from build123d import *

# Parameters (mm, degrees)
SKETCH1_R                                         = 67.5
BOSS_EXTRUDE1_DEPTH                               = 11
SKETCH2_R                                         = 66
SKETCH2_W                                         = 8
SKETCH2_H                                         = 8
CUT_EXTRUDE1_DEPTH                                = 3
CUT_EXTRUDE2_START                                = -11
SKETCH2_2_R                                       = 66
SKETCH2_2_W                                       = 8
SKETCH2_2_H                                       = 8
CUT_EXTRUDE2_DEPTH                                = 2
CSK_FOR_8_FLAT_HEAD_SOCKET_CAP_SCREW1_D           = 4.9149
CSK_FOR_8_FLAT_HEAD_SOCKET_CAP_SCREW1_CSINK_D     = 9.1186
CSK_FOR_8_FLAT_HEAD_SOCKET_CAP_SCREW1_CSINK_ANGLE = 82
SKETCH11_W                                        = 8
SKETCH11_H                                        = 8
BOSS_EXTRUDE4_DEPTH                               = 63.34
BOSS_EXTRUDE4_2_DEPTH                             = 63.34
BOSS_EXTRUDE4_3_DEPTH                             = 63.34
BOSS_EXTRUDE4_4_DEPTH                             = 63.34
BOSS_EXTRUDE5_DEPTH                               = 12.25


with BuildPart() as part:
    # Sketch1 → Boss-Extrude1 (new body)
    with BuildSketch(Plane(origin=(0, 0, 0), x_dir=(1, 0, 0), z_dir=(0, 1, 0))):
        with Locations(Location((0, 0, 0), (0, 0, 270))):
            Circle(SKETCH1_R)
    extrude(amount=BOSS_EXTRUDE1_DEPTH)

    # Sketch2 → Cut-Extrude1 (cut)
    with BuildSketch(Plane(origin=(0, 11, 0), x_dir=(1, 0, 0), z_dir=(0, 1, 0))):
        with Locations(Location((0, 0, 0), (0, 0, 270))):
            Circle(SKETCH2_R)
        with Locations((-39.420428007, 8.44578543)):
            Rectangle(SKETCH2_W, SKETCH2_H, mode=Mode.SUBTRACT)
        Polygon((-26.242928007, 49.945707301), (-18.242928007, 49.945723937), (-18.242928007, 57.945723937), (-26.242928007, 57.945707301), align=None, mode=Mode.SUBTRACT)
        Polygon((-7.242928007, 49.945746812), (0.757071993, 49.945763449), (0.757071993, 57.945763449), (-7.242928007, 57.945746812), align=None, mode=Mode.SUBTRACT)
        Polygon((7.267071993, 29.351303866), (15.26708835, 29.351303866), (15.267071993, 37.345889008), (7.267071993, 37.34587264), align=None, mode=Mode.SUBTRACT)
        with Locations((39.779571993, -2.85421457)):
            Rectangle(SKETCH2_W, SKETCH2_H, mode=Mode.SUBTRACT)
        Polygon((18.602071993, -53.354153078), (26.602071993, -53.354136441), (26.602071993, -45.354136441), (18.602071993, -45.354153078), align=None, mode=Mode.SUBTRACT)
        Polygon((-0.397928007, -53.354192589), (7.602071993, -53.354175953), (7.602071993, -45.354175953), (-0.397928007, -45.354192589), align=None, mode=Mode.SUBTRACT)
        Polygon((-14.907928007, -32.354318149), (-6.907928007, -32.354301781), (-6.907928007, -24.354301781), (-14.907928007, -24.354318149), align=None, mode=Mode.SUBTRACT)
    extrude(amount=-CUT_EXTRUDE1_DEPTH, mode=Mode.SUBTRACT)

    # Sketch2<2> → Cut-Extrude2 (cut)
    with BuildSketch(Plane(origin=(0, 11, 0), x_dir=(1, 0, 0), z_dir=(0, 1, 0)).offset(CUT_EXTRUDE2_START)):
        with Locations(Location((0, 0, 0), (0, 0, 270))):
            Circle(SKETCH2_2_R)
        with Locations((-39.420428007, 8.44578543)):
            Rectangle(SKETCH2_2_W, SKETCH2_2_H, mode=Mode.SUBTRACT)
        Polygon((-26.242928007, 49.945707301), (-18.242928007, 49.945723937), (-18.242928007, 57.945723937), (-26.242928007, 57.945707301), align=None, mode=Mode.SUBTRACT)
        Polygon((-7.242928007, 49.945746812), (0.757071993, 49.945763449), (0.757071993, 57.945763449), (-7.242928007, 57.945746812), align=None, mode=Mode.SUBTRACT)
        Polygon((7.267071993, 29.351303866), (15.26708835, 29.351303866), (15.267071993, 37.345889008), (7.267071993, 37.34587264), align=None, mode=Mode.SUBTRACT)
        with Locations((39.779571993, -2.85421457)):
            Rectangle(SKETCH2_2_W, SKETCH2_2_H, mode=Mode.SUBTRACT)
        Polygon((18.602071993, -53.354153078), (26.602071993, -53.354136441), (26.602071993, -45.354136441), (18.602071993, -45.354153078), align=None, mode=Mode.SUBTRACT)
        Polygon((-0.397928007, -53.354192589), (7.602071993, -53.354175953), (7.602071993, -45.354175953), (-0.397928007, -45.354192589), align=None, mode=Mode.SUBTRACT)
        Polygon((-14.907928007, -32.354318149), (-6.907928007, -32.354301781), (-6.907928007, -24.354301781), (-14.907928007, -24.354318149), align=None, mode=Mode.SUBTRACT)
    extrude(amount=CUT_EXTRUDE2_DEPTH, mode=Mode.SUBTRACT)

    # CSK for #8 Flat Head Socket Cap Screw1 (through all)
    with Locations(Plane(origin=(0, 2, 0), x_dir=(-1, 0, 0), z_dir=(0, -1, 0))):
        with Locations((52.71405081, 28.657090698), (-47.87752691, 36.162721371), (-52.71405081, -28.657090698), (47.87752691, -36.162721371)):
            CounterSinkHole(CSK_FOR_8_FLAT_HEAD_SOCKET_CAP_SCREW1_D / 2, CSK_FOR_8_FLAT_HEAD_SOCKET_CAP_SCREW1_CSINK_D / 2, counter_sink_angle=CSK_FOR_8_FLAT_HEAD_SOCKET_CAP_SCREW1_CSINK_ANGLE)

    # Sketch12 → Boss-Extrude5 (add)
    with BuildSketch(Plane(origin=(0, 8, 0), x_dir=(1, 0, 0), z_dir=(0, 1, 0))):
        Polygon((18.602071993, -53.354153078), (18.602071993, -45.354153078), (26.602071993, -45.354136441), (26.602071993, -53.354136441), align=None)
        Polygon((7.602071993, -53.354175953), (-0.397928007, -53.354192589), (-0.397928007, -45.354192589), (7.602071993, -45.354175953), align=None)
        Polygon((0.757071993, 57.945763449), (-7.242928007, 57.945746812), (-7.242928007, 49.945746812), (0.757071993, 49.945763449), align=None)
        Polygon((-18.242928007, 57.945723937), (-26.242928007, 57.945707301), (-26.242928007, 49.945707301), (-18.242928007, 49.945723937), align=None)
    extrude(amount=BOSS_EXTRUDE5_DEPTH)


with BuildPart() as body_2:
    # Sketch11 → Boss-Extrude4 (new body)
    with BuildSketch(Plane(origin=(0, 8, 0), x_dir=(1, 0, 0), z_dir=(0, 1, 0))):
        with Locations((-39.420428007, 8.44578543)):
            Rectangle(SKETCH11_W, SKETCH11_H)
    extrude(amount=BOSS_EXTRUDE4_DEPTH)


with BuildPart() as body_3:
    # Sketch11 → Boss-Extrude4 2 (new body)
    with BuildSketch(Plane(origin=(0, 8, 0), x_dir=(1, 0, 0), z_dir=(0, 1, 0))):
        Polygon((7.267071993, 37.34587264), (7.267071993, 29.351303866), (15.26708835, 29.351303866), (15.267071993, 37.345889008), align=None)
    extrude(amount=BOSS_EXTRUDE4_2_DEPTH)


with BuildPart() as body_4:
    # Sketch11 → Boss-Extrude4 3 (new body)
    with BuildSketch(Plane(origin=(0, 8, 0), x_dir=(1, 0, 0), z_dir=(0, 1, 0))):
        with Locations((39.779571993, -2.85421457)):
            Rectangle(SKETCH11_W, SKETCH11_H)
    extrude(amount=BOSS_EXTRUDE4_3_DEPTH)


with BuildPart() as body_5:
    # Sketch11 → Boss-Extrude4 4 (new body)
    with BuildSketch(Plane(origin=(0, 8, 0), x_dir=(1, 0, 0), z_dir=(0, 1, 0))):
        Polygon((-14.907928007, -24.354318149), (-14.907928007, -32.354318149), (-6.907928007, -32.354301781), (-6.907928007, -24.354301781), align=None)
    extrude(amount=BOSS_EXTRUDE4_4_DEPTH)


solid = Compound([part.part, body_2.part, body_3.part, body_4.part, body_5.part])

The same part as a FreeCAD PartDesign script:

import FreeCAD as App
import Part
import Sketcher
from FreeCAD import Vector

doc = App.newDocument("Part")
body = doc.addObject("PartDesign::Body", "Body")

sketch1 = doc.addObject("Sketcher::SketchObject", "Sketch")
body.addObject(sketch1)
sketch1.AttachmentSupport = (doc.XZ_Plane, [""])
sketch1.MapMode = "FlatFace"
sketch1.addGeometry(Part.Circle(Vector(0, 0, 0), Vector(0, 0, 1), 68), False)
sketch1.addConstraint([
    Sketcher.Constraint("Coincident", 0, 3, -1, 1),
    Sketcher.Constraint("Diameter", 0, 135.0),
])
pad1 = doc.addObject("PartDesign::Pad", "Pad")
body.addObject(pad1)
pad1.Profile = sketch1
pad1.Length = 11
pad1.Reversed = True

sketch2 = doc.addObject("Sketcher::SketchObject", "Sketch001")
body.addObject(sketch2)
sketch2.AttachmentSupport = (doc.XZ_Plane, [""])
sketch2.MapMode = "FlatFace"
sketch2.AttachmentOffset = App.Placement(Vector(0, 0, -11), App.Rotation())
sketch2.addGeometry([
    Part.Circle(Vector(0, 0, 0), Vector(0, 0, 1), 66),
    Part.LineSegment(Vector(-18, -50, 0), Vector(-26, -50, 0)),
    Part.LineSegment(Vector(-26, -50, 0), Vector(-26, -58, 0)),
    Part.LineSegment(Vector(-26, -58, 0), Vector(-18, -58, 0)),
    Part.LineSegment(Vector(-18, -58, 0), Vector(-18, -50, 0)),
    Part.LineSegment(Vector(-35, -4, 0), Vector(-43, -4, 0)),
    Part.LineSegment(Vector(-43, -4, 0), Vector(-43, -12, 0)),
    Part.LineSegment(Vector(-43, -12, 0), Vector(-35, -12, 0)),
    Part.LineSegment(Vector(-35, -12, 0), Vector(-35, -4, 0)),
    Part.LineSegment(Vector(1, -50, 0), Vector(-7, -50, 0)),
    Part.LineSegment(Vector(-7, -50, 0), Vector(-7, -58, 0)),
    Part.LineSegment(Vector(-7, -58, 0), Vector(1, -58, 0)),
    Part.LineSegment(Vector(1, -58, 0), Vector(1, -50, 0)),
    Part.LineSegment(Vector(-7, 32, 0), Vector(-15, 32, 0)),
    Part.LineSegment(Vector(-15, 32, 0), Vector(-15, 24, 0)),
    Part.LineSegment(Vector(-15, 24, 0), Vector(-7, 24, 0)),
    Part.LineSegment(Vector(-7, 24, 0), Vector(-7, 32, 0)),
    Part.LineSegment(Vector(15, -29, 0), Vector(7, -29, 0)),
    Part.LineSegment(Vector(7, -29, 0), Vector(7, -37, 0)),
    Part.LineSegment(Vector(7, -37, 0), Vector(15, -37, 0)),
    Part.LineSegment(Vector(15, -37, 0), Vector(15, -29, 0)),
    Part.LineSegment(Vector(8, 53, 0), Vector(0, 53, 0)),
    Part.LineSegment(Vector(0, 53, 0), Vector(0, 45, 0)),
    Part.LineSegment(Vector(0, 45, 0), Vector(8, 45, 0)),
    Part.LineSegment(Vector(8, 45, 0), Vector(8, 53, 0)),
    Part.LineSegment(Vector(44, 7, 0), Vector(36, 7, 0)),
    Part.LineSegment(Vector(36, 7, 0), Vector(36, -1, 0)),
    Part.LineSegment(Vector(36, -1, 0), Vector(44, -1, 0)),
    Part.LineSegment(Vector(44, -1, 0), Vector(44, 7, 0)),
    Part.LineSegment(Vector(27, 53, 0), Vector(19, 53, 0)),
    Part.LineSegment(Vector(19, 53, 0), Vector(19, 45, 0)),
    Part.LineSegment(Vector(19, 45, 0), Vector(27, 45, 0)),
    Part.LineSegment(Vector(27, 45, 0), Vector(27, 53, 0)),
], False)
sketch2.addConstraint([
    Sketcher.Constraint("Coincident", 1, 2, 2, 1),
    Sketcher.Constraint("Coincident", 2, 2, 3, 1),
    Sketcher.Constraint("Coincident", 3, 2, 4, 1),
    Sketcher.Constraint("Coincident", 4, 2, 1, 1),
    Sketcher.Constraint("Coincident", 5, 2, 6, 1),
    Sketcher.Constraint("Coincident", 6, 2, 7, 1),
    Sketcher.Constraint("Coincident", 7, 2, 8, 1),
    Sketcher.Constraint("Coincident", 8, 2, 5, 1),
    Sketcher.Constraint("Coincident", 9, 2, 10, 1),
    Sketcher.Constraint("Coincident", 10, 2, 11, 1),
    Sketcher.Constraint("Coincident", 11, 2, 12, 1),
    Sketcher.Constraint("Coincident", 12, 2, 9, 1),
    Sketcher.Constraint("Coincident", 13, 2, 14, 1),
    Sketcher.Constraint("Coincident", 14, 2, 15, 1),
    Sketcher.Constraint("Coincident", 15, 2, 16, 1),
    Sketcher.Constraint("Coincident", 16, 2, 13, 1),
    Sketcher.Constraint("Coincident", 17, 2, 18, 1),
    Sketcher.Constraint("Coincident", 18, 2, 19, 1),
    Sketcher.Constraint("Coincident", 19, 2, 20, 1),
    Sketcher.Constraint("Coincident", 20, 2, 17, 1),
    Sketcher.Constraint("Coincident", 21, 2, 22, 1),
    Sketcher.Constraint("Coincident", 22, 2, 23, 1),
    Sketcher.Constraint("Coincident", 23, 2, 24, 1),
    Sketcher.Constraint("Coincident", 24, 2, 21, 1),
    Sketcher.Constraint("Coincident", 25, 2, 26, 1),
    Sketcher.Constraint("Coincident", 26, 2, 27, 1),
    Sketcher.Constraint("Coincident", 27, 2, 28, 1),
    Sketcher.Constraint("Coincident", 28, 2, 25, 1),
    Sketcher.Constraint("Coincident", 29, 2, 30, 1),
    Sketcher.Constraint("Coincident", 30, 2, 31, 1),
    Sketcher.Constraint("Coincident", 31, 2, 32, 1),
    Sketcher.Constraint("Coincident", 32, 2, 29, 1),
    Sketcher.Constraint("Vertical", 2),
    Sketcher.Constraint("Vertical", 4),
    Sketcher.Constraint("Horizontal", 5),
    Sketcher.Constraint("Vertical", 6),
    Sketcher.Constraint("Horizontal", 7),
    Sketcher.Constraint("Vertical", 8),
    Sketcher.Constraint("Vertical", 10),
    Sketcher.Constraint("Vertical", 12),
    Sketcher.Constraint("Vertical", 14),
    Sketcher.Constraint("Vertical", 16),
    Sketcher.Constraint("Horizontal", 17),
    Sketcher.Constraint("Vertical", 18),
    Sketcher.Constraint("Vertical", 22),
    Sketcher.Constraint("Vertical", 24),
    Sketcher.Constraint("Horizontal", 25),
    Sketcher.Constraint("Vertical", 26),
    Sketcher.Constraint("Horizontal", 27),
    Sketcher.Constraint("Vertical", 28),
    Sketcher.Constraint("Vertical", 30),
    Sketcher.Constraint("Vertical", 32),
    Sketcher.Constraint("Coincident", 0, 3, -1, 1),
    Sketcher.Constraint("Parallel", 1, 3),
    Sketcher.Constraint("Parallel", 3, 9),
    Sketcher.Constraint("Parallel", 9, 11),
    Sketcher.Constraint("Parallel", 11, 13),
    Sketcher.Constraint("Parallel", 13, 15),
    Sketcher.Constraint("Parallel", 15, 19),
    Sketcher.Constraint("Perpendicular", 19, 20),
    Sketcher.Constraint("Perpendicular", 20, 21),
    Sketcher.Constraint("Parallel", 21, 23),
    Sketcher.Constraint("Parallel", 23, 29),
    Sketcher.Constraint("Parallel", 29, 31),
    Sketcher.Constraint("Equal", 7, 25),
    Sketcher.Constraint("Equal", 27, 2),
    Sketcher.Constraint("Equal", 4, 6),
    Sketcher.Constraint("Equal", 8, 10),
    Sketcher.Constraint("Equal", 12, 14),
    Sketcher.Constraint("Equal", 16, 22),
    Sketcher.Constraint("Equal", 24, 26),
    Sketcher.Constraint("Equal", 28, 30),
    Sketcher.Constraint("Equal", 3, 9),
    Sketcher.Constraint("Equal", 11, 13),
    Sketcher.Constraint("Equal", 15, 19),
    Sketcher.Constraint("Equal", 19, 21),
    Sketcher.Constraint("Equal", 23, 29),
    Sketcher.Constraint("Diameter", 0, 132.0),
    Sketcher.Constraint("DistanceX", 5, 2, 5, 1, 8.0),
    Sketcher.Constraint("Distance", 1, 8.0),
    Sketcher.Constraint("DistanceX", 4, 2, 9, 2, 11.0),
    Sketcher.Constraint("DistanceX", 24, 2, 29, 2, 11.0),
    Sketcher.Constraint("DistanceX", 12, 2, 17, 2, 6.51),
    Sketcher.Constraint("DistanceX", 16, 2, 21, 2, 6.51),
    Sketcher.Constraint("DistanceY", 18, 2, 18, 1, 7.994569),
    Sketcher.Constraint("DistanceY", -1, 1, 15, 2, 24.354302),
    Sketcher.Constraint("DistanceX", 5, 2, 1, 2, 17.1775),
    Sketcher.Constraint("DistanceX", 8, 2, 13, 2, 20.5125),
    Sketcher.Constraint("DistanceX", 17, 2, 25, 2, 28.5125),
    Sketcher.Constraint("DistanceX", 17, 2, 17, 1, 8.000016),
    Sketcher.Constraint("DistanceX", 1, 2, -1, 1, 26.242928),
    Sketcher.Constraint("DistanceY", 19, 2, -1, 1, 37.345889),
    Sketcher.Constraint("DistanceY", 1, 2, 5, 2, 45.499922),
    Sketcher.Constraint("DistanceY", 2, 2, 9, 2, 7.99996),
    Sketcher.Constraint("DistanceY", 12, 2, 17, 2, 20.59446),
    Sketcher.Constraint("DistanceY", 16, 2, 21, 2, 20.999891),
    Sketcher.Constraint("DistanceY", 20, 2, 25, 2, 36.205518),
    Sketcher.Constraint("DistanceY", 22, 2, 29, 2, 7.99996),
])
pocket1 = doc.addObject("PartDesign::Pocket", "Pocket")
body.addObject(pocket1)
pocket1.Profile = sketch2
pocket1.Length = 3
pocket1.Reversed = True

sketch3 = doc.addObject("Sketcher::SketchObject", "Sketch002")
body.addObject(sketch3)
sketch3.AttachmentSupport = (doc.XZ_Plane, [""])
sketch3.MapMode = "FlatFace"
sketch3.addGeometry([
    Part.Circle(Vector(0, 0, 0), Vector(0, 0, 1), 66),
    Part.LineSegment(Vector(-18, -50, 0), Vector(-26, -50, 0)),
    Part.LineSegment(Vector(-26, -50, 0), Vector(-26, -58, 0)),
    Part.LineSegment(Vector(-26, -58, 0), Vector(-18, -58, 0)),
    Part.LineSegment(Vector(-18, -58, 0), Vector(-18, -50, 0)),
    Part.LineSegment(Vector(-35, -4, 0), Vector(-43, -4, 0)),
    Part.LineSegment(Vector(-43, -4, 0), Vector(-43, -12, 0)),
    Part.LineSegment(Vector(-43, -12, 0), Vector(-35, -12, 0)),
    Part.LineSegment(Vector(-35, -12, 0), Vector(-35, -4, 0)),
    Part.LineSegment(Vector(1, -50, 0), Vector(-7, -50, 0)),
    Part.LineSegment(Vector(-7, -50, 0), Vector(-7, -58, 0)),
    Part.LineSegment(Vector(-7, -58, 0), Vector(1, -58, 0)),
    Part.LineSegment(Vector(1, -58, 0), Vector(1, -50, 0)),
    Part.LineSegment(Vector(-7, 32, 0), Vector(-15, 32, 0)),
    Part.LineSegment(Vector(-15, 32, 0), Vector(-15, 24, 0)),
    Part.LineSegment(Vector(-15, 24, 0), Vector(-7, 24, 0)),
    Part.LineSegment(Vector(-7, 24, 0), Vector(-7, 32, 0)),
    Part.LineSegment(Vector(15, -29, 0), Vector(7, -29, 0)),
    Part.LineSegment(Vector(7, -29, 0), Vector(7, -37, 0)),
    Part.LineSegment(Vector(7, -37, 0), Vector(15, -37, 0)),
    Part.LineSegment(Vector(15, -37, 0), Vector(15, -29, 0)),
    Part.LineSegment(Vector(8, 53, 0), Vector(0, 53, 0)),
    Part.LineSegment(Vector(0, 53, 0), Vector(0, 45, 0)),
    Part.LineSegment(Vector(0, 45, 0), Vector(8, 45, 0)),
    Part.LineSegment(Vector(8, 45, 0), Vector(8, 53, 0)),
    Part.LineSegment(Vector(44, 7, 0), Vector(36, 7, 0)),
    Part.LineSegment(Vector(36, 7, 0), Vector(36, -1, 0)),
    Part.LineSegment(Vector(36, -1, 0), Vector(44, -1, 0)),
    Part.LineSegment(Vector(44, -1, 0), Vector(44, 7, 0)),
    Part.LineSegment(Vector(27, 53, 0), Vector(19, 53, 0)),
    Part.LineSegment(Vector(19, 53, 0), Vector(19, 45, 0)),
    Part.LineSegment(Vector(19, 45, 0), Vector(27, 45, 0)),
    Part.LineSegment(Vector(27, 45, 0), Vector(27, 53, 0)),
], False)
sketch3.addConstraint([
    Sketcher.Constraint("Coincident", 1, 2, 2, 1),
    Sketcher.Constraint("Coincident", 2, 2, 3, 1),
    Sketcher.Constraint("Coincident", 3, 2, 4, 1),
    Sketcher.Constraint("Coincident", 4, 2, 1, 1),
    Sketcher.Constraint("Coincident", 5, 2, 6, 1),
    Sketcher.Constraint("Coincident", 6, 2, 7, 1),
    Sketcher.Constraint("Coincident", 7, 2, 8, 1),
    Sketcher.Constraint("Coincident", 8, 2, 5, 1),
    Sketcher.Constraint("Coincident", 9, 2, 10, 1),
    Sketcher.Constraint("Coincident", 10, 2, 11, 1),
    Sketcher.Constraint("Coincident", 11, 2, 12, 1),
    Sketcher.Constraint("Coincident", 12, 2, 9, 1),
    Sketcher.Constraint("Coincident", 13, 2, 14, 1),
    Sketcher.Constraint("Coincident", 14, 2, 15, 1),
    Sketcher.Constraint("Coincident", 15, 2, 16, 1),
    Sketcher.Constraint("Coincident", 16, 2, 13, 1),
    Sketcher.Constraint("Coincident", 17, 2, 18, 1),
    Sketcher.Constraint("Coincident", 18, 2, 19, 1),
    Sketcher.Constraint("Coincident", 19, 2, 20, 1),
    Sketcher.Constraint("Coincident", 20, 2, 17, 1),
    Sketcher.Constraint("Coincident", 21, 2, 22, 1),
    Sketcher.Constraint("Coincident", 22, 2, 23, 1),
    Sketcher.Constraint("Coincident", 23, 2, 24, 1),
    Sketcher.Constraint("Coincident", 24, 2, 21, 1),
    Sketcher.Constraint("Coincident", 25, 2, 26, 1),
    Sketcher.Constraint("Coincident", 26, 2, 27, 1),
    Sketcher.Constraint("Coincident", 27, 2, 28, 1),
    Sketcher.Constraint("Coincident", 28, 2, 25, 1),
    Sketcher.Constraint("Coincident", 29, 2, 30, 1),
    Sketcher.Constraint("Coincident", 30, 2, 31, 1),
    Sketcher.Constraint("Coincident", 31, 2, 32, 1),
    Sketcher.Constraint("Coincident", 32, 2, 29, 1),
    Sketcher.Constraint("Vertical", 2),
    Sketcher.Constraint("Vertical", 4),
    Sketcher.Constraint("Horizontal", 5),
    Sketcher.Constraint("Vertical", 6),
    Sketcher.Constraint("Horizontal", 7),
    Sketcher.Constraint("Vertical", 8),
    Sketcher.Constraint("Vertical", 10),
    Sketcher.Constraint("Vertical", 12),
    Sketcher.Constraint("Vertical", 14),
    Sketcher.Constraint("Vertical", 16),
    Sketcher.Constraint("Horizontal", 17),
    Sketcher.Constraint("Vertical", 18),
    Sketcher.Constraint("Vertical", 22),
    Sketcher.Constraint("Vertical", 24),
    Sketcher.Constraint("Horizontal", 25),
    Sketcher.Constraint("Vertical", 26),
    Sketcher.Constraint("Horizontal", 27),
    Sketcher.Constraint("Vertical", 28),
    Sketcher.Constraint("Vertical", 30),
    Sketcher.Constraint("Vertical", 32),
    Sketcher.Constraint("Coincident", 0, 3, -1, 1),
    Sketcher.Constraint("Parallel", 1, 3),
    Sketcher.Constraint("Parallel", 3, 9),
    Sketcher.Constraint("Parallel", 9, 11),
    Sketcher.Constraint("Parallel", 11, 13),
    Sketcher.Constraint("Parallel", 13, 15),
    Sketcher.Constraint("Parallel", 15, 19),
    Sketcher.Constraint("Perpendicular", 19, 20),
    Sketcher.Constraint("Perpendicular", 20, 21),
    Sketcher.Constraint("Parallel", 21, 23),
    Sketcher.Constraint("Parallel", 23, 29),
    Sketcher.Constraint("Parallel", 29, 31),
    Sketcher.Constraint("Equal", 7, 25),
    Sketcher.Constraint("Equal", 27, 2),
    Sketcher.Constraint("Equal", 4, 6),
    Sketcher.Constraint("Equal", 8, 10),
    Sketcher.Constraint("Equal", 12, 14),
    Sketcher.Constraint("Equal", 16, 22),
    Sketcher.Constraint("Equal", 24, 26),
    Sketcher.Constraint("Equal", 28, 30),
    Sketcher.Constraint("Equal", 3, 9),
    Sketcher.Constraint("Equal", 11, 13),
    Sketcher.Constraint("Equal", 15, 19),
    Sketcher.Constraint("Equal", 19, 21),
    Sketcher.Constraint("Equal", 23, 29),
    Sketcher.Constraint("Diameter", 0, 132.0),
    Sketcher.Constraint("DistanceX", 5, 2, 5, 1, 8.0),
    Sketcher.Constraint("Distance", 1, 8.0),
    Sketcher.Constraint("DistanceX", 4, 2, 9, 2, 11.0),
    Sketcher.Constraint("DistanceX", 24, 2, 29, 2, 11.0),
    Sketcher.Constraint("DistanceX", 12, 2, 17, 2, 6.51),
    Sketcher.Constraint("DistanceX", 16, 2, 21, 2, 6.51),
    Sketcher.Constraint("DistanceY", 18, 2, 18, 1, 7.994569),
    Sketcher.Constraint("DistanceY", -1, 1, 15, 2, 24.354302),
    Sketcher.Constraint("DistanceX", 5, 2, 1, 2, 17.1775),
    Sketcher.Constraint("DistanceX", 8, 2, 13, 2, 20.5125),
    Sketcher.Constraint("DistanceX", 17, 2, 25, 2, 28.5125),
    Sketcher.Constraint("DistanceX", 17, 2, 17, 1, 8.000016),
    Sketcher.Constraint("DistanceX", 1, 2, -1, 1, 26.242928),
    Sketcher.Constraint("DistanceY", 19, 2, -1, 1, 37.345889),
    Sketcher.Constraint("DistanceY", 1, 2, 5, 2, 45.499922),
    Sketcher.Constraint("DistanceY", 2, 2, 9, 2, 7.99996),
    Sketcher.Constraint("DistanceY", 12, 2, 17, 2, 20.59446),
    Sketcher.Constraint("DistanceY", 16, 2, 21, 2, 20.999891),
    Sketcher.Constraint("DistanceY", 20, 2, 25, 2, 36.205518),
    Sketcher.Constraint("DistanceY", 22, 2, 29, 2, 7.99996),
])
pocket2 = doc.addObject("PartDesign::Pocket", "Pocket001")
body.addObject(pocket2)
pocket2.Profile = sketch3
pocket2.Length = 2

sketch4 = doc.addObject("Sketcher::SketchObject", "Sketch003")
body.addObject(sketch4)
sketch4.AttachmentSupport = (doc.XZ_Plane, [""])
sketch4.MapMode = "FlatFace"
sketch4.AttachmentOffset = App.Placement(Vector(0, 0, -2), App.Rotation())
sketch4.addGeometry([
    Part.Circle(Vector(-52.7, -28.7, 0), Vector(0, 0, 1), 2.5),
    Part.Circle(Vector(47.9, -36.2, 0), Vector(0, 0, 1), 2.5),
    Part.Circle(Vector(52.7, 28.7, 0), Vector(0, 0, 1), 2.5),
    Part.Circle(Vector(-47.9, 36.2, 0), Vector(0, 0, 1), 2.5),
], False)
sketch4.addConstraint([
    Sketcher.Constraint("Equal", 0, 1),
    Sketcher.Constraint("Equal", 1, 2),
    Sketcher.Constraint("Equal", 2, 3),
    Sketcher.Constraint("Symmetric", 0, 3, 2, 3, -1, 1),
    Sketcher.Constraint("Symmetric", 1, 3, 3, 3, -1, 1),
    Sketcher.Constraint("Diameter", 0, 4.9149),
    Sketcher.Constraint("DistanceX", 0, 3, 2, 3, 105.428102),
    Sketcher.Constraint("DistanceY", 0, 3, -1, 1, 28.657091),
    Sketcher.Constraint("DistanceY", 1, 3, -1, 1, 36.162721),
    Sketcher.Constraint("DistanceX", -1, 1, 1, 3, 47.877527),
])
doc.recompute()
hole = doc.addObject("PartDesign::Hole", "Hole")
body.addObject(hole)
hole.Profile = sketch4
hole.ThreadType = "None"
hole.Diameter = 4.9149
hole.DepthType = "ThroughAll"
hole.HoleCutType = "Countersink"
hole.HoleCutDiameter = 9.1186
hole.HoleCutCountersinkAngle = 82

sketch5 = doc.addObject("Sketcher::SketchObject", "Sketch004")
body.addObject(sketch5)
sketch5.AttachmentSupport = (doc.XZ_Plane, [""])
sketch5.MapMode = "FlatFace"
sketch5.AttachmentOffset = App.Placement(Vector(0, 0, -8), App.Rotation())
sketch5.addGeometry([
    Part.LineSegment(Vector(19, 45, 0), Vector(19, 53, 0)),
    Part.LineSegment(Vector(19, 53, 0), Vector(27, 53, 0)),
    Part.LineSegment(Vector(27, 53, 0), Vector(27, 45, 0)),
    Part.LineSegment(Vector(27, 45, 0), Vector(19, 45, 0)),
    Part.LineSegment(Vector(0, 53, 0), Vector(8, 53, 0)),
    Part.LineSegment(Vector(8, 53, 0), Vector(8, 45, 0)),
    Part.LineSegment(Vector(8, 45, 0), Vector(0, 45, 0)),
    Part.LineSegment(Vector(0, 45, 0), Vector(0, 53, 0)),
    Part.LineSegment(Vector(1, -58, 0), Vector(-7, -58, 0)),
    Part.LineSegment(Vector(-7, -58, 0), Vector(-7, -50, 0)),
    Part.LineSegment(Vector(-7, -50, 0), Vector(1, -50, 0)),
    Part.LineSegment(Vector(1, -50, 0), Vector(1, -58, 0)),
    Part.LineSegment(Vector(-18, -58, 0), Vector(-26, -58, 0)),
    Part.LineSegment(Vector(-26, -58, 0), Vector(-26, -50, 0)),
    Part.LineSegment(Vector(-26, -50, 0), Vector(-18, -50, 0)),
    Part.LineSegment(Vector(-18, -50, 0), Vector(-18, -58, 0)),
], False)
sketch5.addConstraint([
    Sketcher.Constraint("Coincident", 0, 2, 1, 1),
    Sketcher.Constraint("Coincident", 1, 2, 2, 1),
    Sketcher.Constraint("Coincident", 2, 2, 3, 1),
    Sketcher.Constraint("Coincident", 3, 2, 0, 1),
    Sketcher.Constraint("Coincident", 4, 2, 5, 1),
    Sketcher.Constraint("Coincident", 5, 2, 6, 1),
    Sketcher.Constraint("Coincident", 6, 2, 7, 1),
    Sketcher.Constraint("Coincident", 7, 2, 4, 1),
    Sketcher.Constraint("Coincident", 8, 2, 9, 1),
    Sketcher.Constraint("Coincident", 9, 2, 10, 1),
    Sketcher.Constraint("Coincident", 10, 2, 11, 1),
    Sketcher.Constraint("Coincident", 11, 2, 8, 1),
    Sketcher.Constraint("Coincident", 12, 2, 13, 1),
    Sketcher.Constraint("Coincident", 13, 2, 14, 1),
    Sketcher.Constraint("Coincident", 14, 2, 15, 1),
    Sketcher.Constraint("Coincident", 15, 2, 12, 1),
    Sketcher.Constraint("Vertical", 0),
    Sketcher.Constraint("Vertical", 2),
    Sketcher.Constraint("Vertical", 5),
    Sketcher.Constraint("Vertical", 7),
    Sketcher.Constraint("Vertical", 9),
    Sketcher.Constraint("Vertical", 11),
    Sketcher.Constraint("Vertical", 13),
    Sketcher.Constraint("Vertical", 15),
    Sketcher.Constraint("Parallel", 1, 3),
    Sketcher.Constraint("Parallel", 3, 4),
    Sketcher.Constraint("Parallel", 4, 6),
    Sketcher.Constraint("Parallel", 6, 8),
    Sketcher.Constraint("Parallel", 8, 10),
    Sketcher.Constraint("Parallel", 10, 12),
    Sketcher.Constraint("Parallel", 12, 14),
    Sketcher.Constraint("Equal", 2, 5),
    Sketcher.Constraint("Equal", 7, 9),
    Sketcher.Constraint("Equal", 11, 13),
    Sketcher.Constraint("Equal", 3, 4),
    Sketcher.Constraint("Equal", 6, 8),
    Sketcher.Constraint("Equal", 10, 12),
    Sketcher.Constraint("DistanceY", 0, 1, 0, 2, 8.0),
    Sketcher.Constraint("Distance", 1, 8.0),
    Sketcher.Constraint("DistanceX", 4, 2, 0, 2, 11.0),
    Sketcher.Constraint("DistanceX", 12, 2, 8, 2, 19.0),
    Sketcher.Constraint("DistanceX", 8, 2, 6, 2, 6.845),
    Sketcher.Constraint("DistanceY", 8, 2, 3, 2, 103.2999),
    Sketcher.Constraint("DistanceY", 12, 2, 6, 2, 103.2999),
    Sketcher.Constraint("DistanceX", -1, 1, 0, 2, 18.602072),
    Sketcher.Constraint("DistanceY", 2, 2, 4, 2, 8.00004),
    Sketcher.Constraint("DistanceY", -1, 1, 0, 2, 53.354153),
    Sketcher.Constraint("DistanceY", -1, 1, 1, 2, 53.354136),
])
pad2 = doc.addObject("PartDesign::Pad", "Pad001")
body.addObject(pad2)
pad2.Profile = sketch5
pad2.Length = 12.25
pad2.Reversed = True
body2 = doc.addObject("PartDesign::Body", "Body001")

sketch6 = doc.addObject("Sketcher::SketchObject", "Sketch005")
body2.addObject(sketch6)
sketch6.AttachmentSupport = (doc.getObject("XZ_Plane001"), [""])
sketch6.MapMode = "FlatFace"
sketch6.AttachmentOffset = App.Placement(Vector(0, 0, -8), App.Rotation())
sketch6.addGeometry([
    Part.LineSegment(Vector(-43, -12, 0), Vector(-43, -4, 0)),
    Part.LineSegment(Vector(-43, -4, 0), Vector(-35, -4, 0)),
    Part.LineSegment(Vector(-35, -4, 0), Vector(-35, -12, 0)),
    Part.LineSegment(Vector(-35, -12, 0), Vector(-43, -12, 0)),
], False)
sketch6.addConstraint([
    Sketcher.Constraint("Coincident", 0, 2, 1, 1),
    Sketcher.Constraint("Coincident", 1, 2, 2, 1),
    Sketcher.Constraint("Coincident", 2, 2, 3, 1),
    Sketcher.Constraint("Coincident", 3, 2, 0, 1),
    Sketcher.Constraint("Vertical", 0),
    Sketcher.Constraint("Horizontal", 1),
    Sketcher.Constraint("Vertical", 2),
    Sketcher.Constraint("Horizontal", 3),
    Sketcher.Constraint("Equal", 3, 0),
    Sketcher.Constraint("DistanceX", 1, 1, 1, 2, 8.0),
    Sketcher.Constraint("DistanceX", 0, 2, -1, 1, 43.420428),
    Sketcher.Constraint("DistanceY", 0, 2, -1, 1, 4.445785),
])
pad3 = doc.addObject("PartDesign::Pad", "Pad002")
body2.addObject(pad3)
pad3.Profile = sketch6
pad3.Length = 63.34
pad3.Reversed = True
body3 = doc.addObject("PartDesign::Body", "Body002")

sketch7 = doc.addObject("Sketcher::SketchObject", "Sketch006")
body3.addObject(sketch7)
sketch7.AttachmentSupport = (doc.getObject("XZ_Plane002"), [""])
sketch7.MapMode = "FlatFace"
sketch7.AttachmentOffset = App.Placement(Vector(0, 0, -8), App.Rotation())
sketch7.addGeometry([
    Part.LineSegment(Vector(7, -37, 0), Vector(7, -29, 0)),
    Part.LineSegment(Vector(7, -29, 0), Vector(15, -29, 0)),
    Part.LineSegment(Vector(15, -29, 0), Vector(15, -37, 0)),
    Part.LineSegment(Vector(15, -37, 0), Vector(7, -37, 0)),
], False)
sketch7.addConstraint([
    Sketcher.Constraint("Coincident", 0, 2, 1, 1),
    Sketcher.Constraint("Coincident", 1, 2, 2, 1),
    Sketcher.Constraint("Coincident", 2, 2, 3, 1),
    Sketcher.Constraint("Coincident", 3, 2, 0, 1),
    Sketcher.Constraint("Vertical", 0),
    Sketcher.Constraint("Horizontal", 1),
    Sketcher.Constraint("Perpendicular", 2, 3),
    Sketcher.Constraint("Distance", 3, 8.0),
    Sketcher.Constraint("DistanceY", 0, 1, 0, 2, 7.994569),
    Sketcher.Constraint("DistanceX", 1, 1, 1, 2, 8.000016),
    Sketcher.Constraint("DistanceX", -1, 1, 0, 2, 7.267072),
    Sketcher.Constraint("DistanceY", 2, 2, -1, 1, 37.345889),
])
pad4 = doc.addObject("PartDesign::Pad", "Pad003")
body3.addObject(pad4)
pad4.Profile = sketch7
pad4.Length = 63.34
pad4.Reversed = True
body4 = doc.addObject("PartDesign::Body", "Body003")

sketch8 = doc.addObject("Sketcher::SketchObject", "Sketch007")
body4.addObject(sketch8)
sketch8.AttachmentSupport = (doc.getObject("XZ_Plane003"), [""])
sketch8.MapMode = "FlatFace"
sketch8.AttachmentOffset = App.Placement(Vector(0, 0, -8), App.Rotation())
sketch8.addGeometry([
    Part.LineSegment(Vector(36, -1, 0), Vector(36, 7, 0)),
    Part.LineSegment(Vector(36, 7, 0), Vector(44, 7, 0)),
    Part.LineSegment(Vector(44, 7, 0), Vector(44, -1, 0)),
    Part.LineSegment(Vector(44, -1, 0), Vector(36, -1, 0)),
], False)
sketch8.addConstraint([
    Sketcher.Constraint("Coincident", 0, 2, 1, 1),
    Sketcher.Constraint("Coincident", 1, 2, 2, 1),
    Sketcher.Constraint("Coincident", 2, 2, 3, 1),
    Sketcher.Constraint("Coincident", 3, 2, 0, 1),
    Sketcher.Constraint("Vertical", 0),
    Sketcher.Constraint("Horizontal", 1),
    Sketcher.Constraint("Vertical", 2),
    Sketcher.Constraint("Horizontal", 3),
    Sketcher.Constraint("Equal", 3, 0),
    Sketcher.Constraint("DistanceX", 1, 1, 1, 2, 8.0),
    Sketcher.Constraint("DistanceX", -1, 1, 0, 2, 35.779572),
    Sketcher.Constraint("DistanceY", -1, 1, 0, 2, 6.854215),
])
pad5 = doc.addObject("PartDesign::Pad", "Pad004")
body4.addObject(pad5)
pad5.Profile = sketch8
pad5.Length = 63.34
pad5.Reversed = True
body5 = doc.addObject("PartDesign::Body", "Body004")

sketch9 = doc.addObject("Sketcher::SketchObject", "Sketch008")
body5.addObject(sketch9)
sketch9.AttachmentSupport = (doc.getObject("XZ_Plane004"), [""])
sketch9.MapMode = "FlatFace"
sketch9.AttachmentOffset = App.Placement(Vector(0, 0, -8), App.Rotation())
sketch9.addGeometry([
    Part.LineSegment(Vector(-15, 24, 0), Vector(-15, 32, 0)),
    Part.LineSegment(Vector(-15, 32, 0), Vector(-7, 32, 0)),
    Part.LineSegment(Vector(-7, 32, 0), Vector(-7, 24, 0)),
    Part.LineSegment(Vector(-7, 24, 0), Vector(-15, 24, 0)),
], False)
sketch9.addConstraint([
    Sketcher.Constraint("Coincident", 0, 2, 1, 1),
    Sketcher.Constraint("Coincident", 1, 2, 2, 1),
    Sketcher.Constraint("Coincident", 2, 2, 3, 1),
    Sketcher.Constraint("Coincident", 3, 2, 0, 1),
    Sketcher.Constraint("Vertical", 0),
    Sketcher.Constraint("Vertical", 2),
    Sketcher.Constraint("Parallel", 1, 3),
    Sketcher.Constraint("DistanceY", 0, 1, 0, 2, 8.0),
    Sketcher.Constraint("Distance", 1, 8.0),
    Sketcher.Constraint("DistanceY", -1, 1, 1, 2, 32.354302),
    Sketcher.Constraint("DistanceX", 0, 2, -1, 1, 14.907928),
    Sketcher.Constraint("DistanceY", -1, 1, 0, 2, 32.354318),
])
pad6 = doc.addObject("PartDesign::Pad", "Pad005")
body5.addObject(pad6)
pad6.Profile = sketch9
pad6.Length = 63.34
pad6.Reversed = True

doc.recompute()
